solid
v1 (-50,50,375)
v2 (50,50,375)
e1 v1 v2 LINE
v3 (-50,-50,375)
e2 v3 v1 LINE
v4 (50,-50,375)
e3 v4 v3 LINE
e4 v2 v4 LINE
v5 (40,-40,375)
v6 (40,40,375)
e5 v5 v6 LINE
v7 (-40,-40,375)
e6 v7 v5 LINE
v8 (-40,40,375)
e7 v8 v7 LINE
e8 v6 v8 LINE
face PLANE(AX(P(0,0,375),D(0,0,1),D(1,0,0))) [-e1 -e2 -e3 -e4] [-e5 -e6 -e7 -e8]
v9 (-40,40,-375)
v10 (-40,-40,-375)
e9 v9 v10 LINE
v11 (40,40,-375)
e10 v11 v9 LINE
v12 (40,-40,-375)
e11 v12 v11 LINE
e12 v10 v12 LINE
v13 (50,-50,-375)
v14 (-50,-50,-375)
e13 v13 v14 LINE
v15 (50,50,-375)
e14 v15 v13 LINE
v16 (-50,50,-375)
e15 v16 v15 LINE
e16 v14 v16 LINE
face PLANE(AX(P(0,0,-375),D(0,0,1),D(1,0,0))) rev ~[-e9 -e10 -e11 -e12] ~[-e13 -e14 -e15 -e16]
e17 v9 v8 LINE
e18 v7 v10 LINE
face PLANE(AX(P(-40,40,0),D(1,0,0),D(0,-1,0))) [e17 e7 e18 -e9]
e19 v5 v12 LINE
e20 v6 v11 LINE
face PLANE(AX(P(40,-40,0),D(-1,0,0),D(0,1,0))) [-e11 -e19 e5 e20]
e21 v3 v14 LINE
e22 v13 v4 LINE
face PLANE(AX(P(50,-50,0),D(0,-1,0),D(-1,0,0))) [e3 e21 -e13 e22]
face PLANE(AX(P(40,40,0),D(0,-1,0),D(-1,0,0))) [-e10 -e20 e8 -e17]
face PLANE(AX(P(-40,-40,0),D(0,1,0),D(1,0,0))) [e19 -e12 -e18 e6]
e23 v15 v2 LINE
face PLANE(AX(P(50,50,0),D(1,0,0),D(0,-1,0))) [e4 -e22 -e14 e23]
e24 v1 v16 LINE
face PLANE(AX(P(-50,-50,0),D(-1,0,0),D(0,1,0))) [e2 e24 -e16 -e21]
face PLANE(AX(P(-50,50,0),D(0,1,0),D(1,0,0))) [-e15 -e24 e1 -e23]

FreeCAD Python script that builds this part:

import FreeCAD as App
import Part
import Sketcher
Q = App.Units.Quantity

doc = App.newDocument("Part")
body = doc.addObject("PartDesign::Body", "Body")

# Sketch on XY plane
sketch1 = body.newObject("Sketcher::SketchObject", "Sketch")
sketch1.AttachmentSupport = (doc.getObject("XY_Plane"), [""])
sketch1.MapMode = "FlatFace"
sketch1.addGeometry(Part.LineSegment(App.Vector(-50, -50, 0), App.Vector(50, -50, 0)), False)
sketch1.addGeometry(Part.LineSegment(App.Vector(50, -50, 0), App.Vector(50, 50, 0)), False)
sketch1.addGeometry(Part.LineSegment(App.Vector(50, 50, 0), App.Vector(-50, 50, 0)), False)
sketch1.addGeometry(Part.LineSegment(App.Vector(-50, 50, 0), App.Vector(-50, -50, 0)), False)
sketch1.addGeometry(Part.LineSegment(App.Vector(-40, -40, 0), App.Vector(-40, 40, 0)), False)
sketch1.addGeometry(Part.LineSegment(App.Vector(-40, 40, 0), App.Vector(40, 40, 0)), False)
sketch1.addGeometry(Part.LineSegment(App.Vector(40, 40, 0), App.Vector(40, -40, 0)), False)
sketch1.addGeometry(Part.LineSegment(App.Vector(40, -40, 0), App.Vector(-40, -40, 0)), False)
sketch1.addConstraint(Sketcher.Constraint("Coincident", 0, 2, 1, 1))
sketch1.addConstraint(Sketcher.Constraint("Coincident", 1, 2, 2, 1))
sketch1.addConstraint(Sketcher.Constraint("Coincident", 2, 2, 3, 1))
sketch1.addConstraint(Sketcher.Constraint("Coincident", 3, 2, 0, 1))
sketch1.addConstraint(Sketcher.Constraint("Coincident", 4, 2, 5, 1))
sketch1.addConstraint(Sketcher.Constraint("Coincident", 5, 2, 6, 1))
sketch1.addConstraint(Sketcher.Constraint("Coincident", 6, 2, 7, 1))
sketch1.addConstraint(Sketcher.Constraint("Coincident", 7, 2, 4, 1))
sketch1.addConstraint(Sketcher.Constraint("Horizontal", 0))
sketch1.addConstraint(Sketcher.Constraint("Vertical", 1))
sketch1.addConstraint(Sketcher.Constraint("Horizontal", 2))
sketch1.addConstraint(Sketcher.Constraint("Vertical", 3))
sketch1.addConstraint(Sketcher.Constraint("Vertical", 4))
sketch1.addConstraint(Sketcher.Constraint("Horizontal", 5))
sketch1.addConstraint(Sketcher.Constraint("Vertical", 6))
sketch1.addConstraint(Sketcher.Constraint("Horizontal", 7))
sketch1.addConstraint(Sketcher.Constraint("Symmetric", 0, 2, 2, 2, -1, 1))
sketch1.addConstraint(Sketcher.Constraint("Symmetric", 4, 2, 6, 2, -1, 1))
sketch1.addConstraint(Sketcher.Constraint("Equal", 2, 1))
sketch1.addConstraint(Sketcher.Constraint("Equal", 7, 4))
sketch1.addConstraint(Sketcher.Constraint("DistanceX", 0, 1, 0, 2, Q("100 mm")))
sketch1.addConstraint(Sketcher.Constraint("DistanceX", 2, 2, 4, 2, Q("10 mm")))
pad1 = body.newObject("PartDesign::Pad", "Pad")
pad1.Profile = sketch1
pad1.Length = 750
pad1.Midplane = True

doc.recompute()
